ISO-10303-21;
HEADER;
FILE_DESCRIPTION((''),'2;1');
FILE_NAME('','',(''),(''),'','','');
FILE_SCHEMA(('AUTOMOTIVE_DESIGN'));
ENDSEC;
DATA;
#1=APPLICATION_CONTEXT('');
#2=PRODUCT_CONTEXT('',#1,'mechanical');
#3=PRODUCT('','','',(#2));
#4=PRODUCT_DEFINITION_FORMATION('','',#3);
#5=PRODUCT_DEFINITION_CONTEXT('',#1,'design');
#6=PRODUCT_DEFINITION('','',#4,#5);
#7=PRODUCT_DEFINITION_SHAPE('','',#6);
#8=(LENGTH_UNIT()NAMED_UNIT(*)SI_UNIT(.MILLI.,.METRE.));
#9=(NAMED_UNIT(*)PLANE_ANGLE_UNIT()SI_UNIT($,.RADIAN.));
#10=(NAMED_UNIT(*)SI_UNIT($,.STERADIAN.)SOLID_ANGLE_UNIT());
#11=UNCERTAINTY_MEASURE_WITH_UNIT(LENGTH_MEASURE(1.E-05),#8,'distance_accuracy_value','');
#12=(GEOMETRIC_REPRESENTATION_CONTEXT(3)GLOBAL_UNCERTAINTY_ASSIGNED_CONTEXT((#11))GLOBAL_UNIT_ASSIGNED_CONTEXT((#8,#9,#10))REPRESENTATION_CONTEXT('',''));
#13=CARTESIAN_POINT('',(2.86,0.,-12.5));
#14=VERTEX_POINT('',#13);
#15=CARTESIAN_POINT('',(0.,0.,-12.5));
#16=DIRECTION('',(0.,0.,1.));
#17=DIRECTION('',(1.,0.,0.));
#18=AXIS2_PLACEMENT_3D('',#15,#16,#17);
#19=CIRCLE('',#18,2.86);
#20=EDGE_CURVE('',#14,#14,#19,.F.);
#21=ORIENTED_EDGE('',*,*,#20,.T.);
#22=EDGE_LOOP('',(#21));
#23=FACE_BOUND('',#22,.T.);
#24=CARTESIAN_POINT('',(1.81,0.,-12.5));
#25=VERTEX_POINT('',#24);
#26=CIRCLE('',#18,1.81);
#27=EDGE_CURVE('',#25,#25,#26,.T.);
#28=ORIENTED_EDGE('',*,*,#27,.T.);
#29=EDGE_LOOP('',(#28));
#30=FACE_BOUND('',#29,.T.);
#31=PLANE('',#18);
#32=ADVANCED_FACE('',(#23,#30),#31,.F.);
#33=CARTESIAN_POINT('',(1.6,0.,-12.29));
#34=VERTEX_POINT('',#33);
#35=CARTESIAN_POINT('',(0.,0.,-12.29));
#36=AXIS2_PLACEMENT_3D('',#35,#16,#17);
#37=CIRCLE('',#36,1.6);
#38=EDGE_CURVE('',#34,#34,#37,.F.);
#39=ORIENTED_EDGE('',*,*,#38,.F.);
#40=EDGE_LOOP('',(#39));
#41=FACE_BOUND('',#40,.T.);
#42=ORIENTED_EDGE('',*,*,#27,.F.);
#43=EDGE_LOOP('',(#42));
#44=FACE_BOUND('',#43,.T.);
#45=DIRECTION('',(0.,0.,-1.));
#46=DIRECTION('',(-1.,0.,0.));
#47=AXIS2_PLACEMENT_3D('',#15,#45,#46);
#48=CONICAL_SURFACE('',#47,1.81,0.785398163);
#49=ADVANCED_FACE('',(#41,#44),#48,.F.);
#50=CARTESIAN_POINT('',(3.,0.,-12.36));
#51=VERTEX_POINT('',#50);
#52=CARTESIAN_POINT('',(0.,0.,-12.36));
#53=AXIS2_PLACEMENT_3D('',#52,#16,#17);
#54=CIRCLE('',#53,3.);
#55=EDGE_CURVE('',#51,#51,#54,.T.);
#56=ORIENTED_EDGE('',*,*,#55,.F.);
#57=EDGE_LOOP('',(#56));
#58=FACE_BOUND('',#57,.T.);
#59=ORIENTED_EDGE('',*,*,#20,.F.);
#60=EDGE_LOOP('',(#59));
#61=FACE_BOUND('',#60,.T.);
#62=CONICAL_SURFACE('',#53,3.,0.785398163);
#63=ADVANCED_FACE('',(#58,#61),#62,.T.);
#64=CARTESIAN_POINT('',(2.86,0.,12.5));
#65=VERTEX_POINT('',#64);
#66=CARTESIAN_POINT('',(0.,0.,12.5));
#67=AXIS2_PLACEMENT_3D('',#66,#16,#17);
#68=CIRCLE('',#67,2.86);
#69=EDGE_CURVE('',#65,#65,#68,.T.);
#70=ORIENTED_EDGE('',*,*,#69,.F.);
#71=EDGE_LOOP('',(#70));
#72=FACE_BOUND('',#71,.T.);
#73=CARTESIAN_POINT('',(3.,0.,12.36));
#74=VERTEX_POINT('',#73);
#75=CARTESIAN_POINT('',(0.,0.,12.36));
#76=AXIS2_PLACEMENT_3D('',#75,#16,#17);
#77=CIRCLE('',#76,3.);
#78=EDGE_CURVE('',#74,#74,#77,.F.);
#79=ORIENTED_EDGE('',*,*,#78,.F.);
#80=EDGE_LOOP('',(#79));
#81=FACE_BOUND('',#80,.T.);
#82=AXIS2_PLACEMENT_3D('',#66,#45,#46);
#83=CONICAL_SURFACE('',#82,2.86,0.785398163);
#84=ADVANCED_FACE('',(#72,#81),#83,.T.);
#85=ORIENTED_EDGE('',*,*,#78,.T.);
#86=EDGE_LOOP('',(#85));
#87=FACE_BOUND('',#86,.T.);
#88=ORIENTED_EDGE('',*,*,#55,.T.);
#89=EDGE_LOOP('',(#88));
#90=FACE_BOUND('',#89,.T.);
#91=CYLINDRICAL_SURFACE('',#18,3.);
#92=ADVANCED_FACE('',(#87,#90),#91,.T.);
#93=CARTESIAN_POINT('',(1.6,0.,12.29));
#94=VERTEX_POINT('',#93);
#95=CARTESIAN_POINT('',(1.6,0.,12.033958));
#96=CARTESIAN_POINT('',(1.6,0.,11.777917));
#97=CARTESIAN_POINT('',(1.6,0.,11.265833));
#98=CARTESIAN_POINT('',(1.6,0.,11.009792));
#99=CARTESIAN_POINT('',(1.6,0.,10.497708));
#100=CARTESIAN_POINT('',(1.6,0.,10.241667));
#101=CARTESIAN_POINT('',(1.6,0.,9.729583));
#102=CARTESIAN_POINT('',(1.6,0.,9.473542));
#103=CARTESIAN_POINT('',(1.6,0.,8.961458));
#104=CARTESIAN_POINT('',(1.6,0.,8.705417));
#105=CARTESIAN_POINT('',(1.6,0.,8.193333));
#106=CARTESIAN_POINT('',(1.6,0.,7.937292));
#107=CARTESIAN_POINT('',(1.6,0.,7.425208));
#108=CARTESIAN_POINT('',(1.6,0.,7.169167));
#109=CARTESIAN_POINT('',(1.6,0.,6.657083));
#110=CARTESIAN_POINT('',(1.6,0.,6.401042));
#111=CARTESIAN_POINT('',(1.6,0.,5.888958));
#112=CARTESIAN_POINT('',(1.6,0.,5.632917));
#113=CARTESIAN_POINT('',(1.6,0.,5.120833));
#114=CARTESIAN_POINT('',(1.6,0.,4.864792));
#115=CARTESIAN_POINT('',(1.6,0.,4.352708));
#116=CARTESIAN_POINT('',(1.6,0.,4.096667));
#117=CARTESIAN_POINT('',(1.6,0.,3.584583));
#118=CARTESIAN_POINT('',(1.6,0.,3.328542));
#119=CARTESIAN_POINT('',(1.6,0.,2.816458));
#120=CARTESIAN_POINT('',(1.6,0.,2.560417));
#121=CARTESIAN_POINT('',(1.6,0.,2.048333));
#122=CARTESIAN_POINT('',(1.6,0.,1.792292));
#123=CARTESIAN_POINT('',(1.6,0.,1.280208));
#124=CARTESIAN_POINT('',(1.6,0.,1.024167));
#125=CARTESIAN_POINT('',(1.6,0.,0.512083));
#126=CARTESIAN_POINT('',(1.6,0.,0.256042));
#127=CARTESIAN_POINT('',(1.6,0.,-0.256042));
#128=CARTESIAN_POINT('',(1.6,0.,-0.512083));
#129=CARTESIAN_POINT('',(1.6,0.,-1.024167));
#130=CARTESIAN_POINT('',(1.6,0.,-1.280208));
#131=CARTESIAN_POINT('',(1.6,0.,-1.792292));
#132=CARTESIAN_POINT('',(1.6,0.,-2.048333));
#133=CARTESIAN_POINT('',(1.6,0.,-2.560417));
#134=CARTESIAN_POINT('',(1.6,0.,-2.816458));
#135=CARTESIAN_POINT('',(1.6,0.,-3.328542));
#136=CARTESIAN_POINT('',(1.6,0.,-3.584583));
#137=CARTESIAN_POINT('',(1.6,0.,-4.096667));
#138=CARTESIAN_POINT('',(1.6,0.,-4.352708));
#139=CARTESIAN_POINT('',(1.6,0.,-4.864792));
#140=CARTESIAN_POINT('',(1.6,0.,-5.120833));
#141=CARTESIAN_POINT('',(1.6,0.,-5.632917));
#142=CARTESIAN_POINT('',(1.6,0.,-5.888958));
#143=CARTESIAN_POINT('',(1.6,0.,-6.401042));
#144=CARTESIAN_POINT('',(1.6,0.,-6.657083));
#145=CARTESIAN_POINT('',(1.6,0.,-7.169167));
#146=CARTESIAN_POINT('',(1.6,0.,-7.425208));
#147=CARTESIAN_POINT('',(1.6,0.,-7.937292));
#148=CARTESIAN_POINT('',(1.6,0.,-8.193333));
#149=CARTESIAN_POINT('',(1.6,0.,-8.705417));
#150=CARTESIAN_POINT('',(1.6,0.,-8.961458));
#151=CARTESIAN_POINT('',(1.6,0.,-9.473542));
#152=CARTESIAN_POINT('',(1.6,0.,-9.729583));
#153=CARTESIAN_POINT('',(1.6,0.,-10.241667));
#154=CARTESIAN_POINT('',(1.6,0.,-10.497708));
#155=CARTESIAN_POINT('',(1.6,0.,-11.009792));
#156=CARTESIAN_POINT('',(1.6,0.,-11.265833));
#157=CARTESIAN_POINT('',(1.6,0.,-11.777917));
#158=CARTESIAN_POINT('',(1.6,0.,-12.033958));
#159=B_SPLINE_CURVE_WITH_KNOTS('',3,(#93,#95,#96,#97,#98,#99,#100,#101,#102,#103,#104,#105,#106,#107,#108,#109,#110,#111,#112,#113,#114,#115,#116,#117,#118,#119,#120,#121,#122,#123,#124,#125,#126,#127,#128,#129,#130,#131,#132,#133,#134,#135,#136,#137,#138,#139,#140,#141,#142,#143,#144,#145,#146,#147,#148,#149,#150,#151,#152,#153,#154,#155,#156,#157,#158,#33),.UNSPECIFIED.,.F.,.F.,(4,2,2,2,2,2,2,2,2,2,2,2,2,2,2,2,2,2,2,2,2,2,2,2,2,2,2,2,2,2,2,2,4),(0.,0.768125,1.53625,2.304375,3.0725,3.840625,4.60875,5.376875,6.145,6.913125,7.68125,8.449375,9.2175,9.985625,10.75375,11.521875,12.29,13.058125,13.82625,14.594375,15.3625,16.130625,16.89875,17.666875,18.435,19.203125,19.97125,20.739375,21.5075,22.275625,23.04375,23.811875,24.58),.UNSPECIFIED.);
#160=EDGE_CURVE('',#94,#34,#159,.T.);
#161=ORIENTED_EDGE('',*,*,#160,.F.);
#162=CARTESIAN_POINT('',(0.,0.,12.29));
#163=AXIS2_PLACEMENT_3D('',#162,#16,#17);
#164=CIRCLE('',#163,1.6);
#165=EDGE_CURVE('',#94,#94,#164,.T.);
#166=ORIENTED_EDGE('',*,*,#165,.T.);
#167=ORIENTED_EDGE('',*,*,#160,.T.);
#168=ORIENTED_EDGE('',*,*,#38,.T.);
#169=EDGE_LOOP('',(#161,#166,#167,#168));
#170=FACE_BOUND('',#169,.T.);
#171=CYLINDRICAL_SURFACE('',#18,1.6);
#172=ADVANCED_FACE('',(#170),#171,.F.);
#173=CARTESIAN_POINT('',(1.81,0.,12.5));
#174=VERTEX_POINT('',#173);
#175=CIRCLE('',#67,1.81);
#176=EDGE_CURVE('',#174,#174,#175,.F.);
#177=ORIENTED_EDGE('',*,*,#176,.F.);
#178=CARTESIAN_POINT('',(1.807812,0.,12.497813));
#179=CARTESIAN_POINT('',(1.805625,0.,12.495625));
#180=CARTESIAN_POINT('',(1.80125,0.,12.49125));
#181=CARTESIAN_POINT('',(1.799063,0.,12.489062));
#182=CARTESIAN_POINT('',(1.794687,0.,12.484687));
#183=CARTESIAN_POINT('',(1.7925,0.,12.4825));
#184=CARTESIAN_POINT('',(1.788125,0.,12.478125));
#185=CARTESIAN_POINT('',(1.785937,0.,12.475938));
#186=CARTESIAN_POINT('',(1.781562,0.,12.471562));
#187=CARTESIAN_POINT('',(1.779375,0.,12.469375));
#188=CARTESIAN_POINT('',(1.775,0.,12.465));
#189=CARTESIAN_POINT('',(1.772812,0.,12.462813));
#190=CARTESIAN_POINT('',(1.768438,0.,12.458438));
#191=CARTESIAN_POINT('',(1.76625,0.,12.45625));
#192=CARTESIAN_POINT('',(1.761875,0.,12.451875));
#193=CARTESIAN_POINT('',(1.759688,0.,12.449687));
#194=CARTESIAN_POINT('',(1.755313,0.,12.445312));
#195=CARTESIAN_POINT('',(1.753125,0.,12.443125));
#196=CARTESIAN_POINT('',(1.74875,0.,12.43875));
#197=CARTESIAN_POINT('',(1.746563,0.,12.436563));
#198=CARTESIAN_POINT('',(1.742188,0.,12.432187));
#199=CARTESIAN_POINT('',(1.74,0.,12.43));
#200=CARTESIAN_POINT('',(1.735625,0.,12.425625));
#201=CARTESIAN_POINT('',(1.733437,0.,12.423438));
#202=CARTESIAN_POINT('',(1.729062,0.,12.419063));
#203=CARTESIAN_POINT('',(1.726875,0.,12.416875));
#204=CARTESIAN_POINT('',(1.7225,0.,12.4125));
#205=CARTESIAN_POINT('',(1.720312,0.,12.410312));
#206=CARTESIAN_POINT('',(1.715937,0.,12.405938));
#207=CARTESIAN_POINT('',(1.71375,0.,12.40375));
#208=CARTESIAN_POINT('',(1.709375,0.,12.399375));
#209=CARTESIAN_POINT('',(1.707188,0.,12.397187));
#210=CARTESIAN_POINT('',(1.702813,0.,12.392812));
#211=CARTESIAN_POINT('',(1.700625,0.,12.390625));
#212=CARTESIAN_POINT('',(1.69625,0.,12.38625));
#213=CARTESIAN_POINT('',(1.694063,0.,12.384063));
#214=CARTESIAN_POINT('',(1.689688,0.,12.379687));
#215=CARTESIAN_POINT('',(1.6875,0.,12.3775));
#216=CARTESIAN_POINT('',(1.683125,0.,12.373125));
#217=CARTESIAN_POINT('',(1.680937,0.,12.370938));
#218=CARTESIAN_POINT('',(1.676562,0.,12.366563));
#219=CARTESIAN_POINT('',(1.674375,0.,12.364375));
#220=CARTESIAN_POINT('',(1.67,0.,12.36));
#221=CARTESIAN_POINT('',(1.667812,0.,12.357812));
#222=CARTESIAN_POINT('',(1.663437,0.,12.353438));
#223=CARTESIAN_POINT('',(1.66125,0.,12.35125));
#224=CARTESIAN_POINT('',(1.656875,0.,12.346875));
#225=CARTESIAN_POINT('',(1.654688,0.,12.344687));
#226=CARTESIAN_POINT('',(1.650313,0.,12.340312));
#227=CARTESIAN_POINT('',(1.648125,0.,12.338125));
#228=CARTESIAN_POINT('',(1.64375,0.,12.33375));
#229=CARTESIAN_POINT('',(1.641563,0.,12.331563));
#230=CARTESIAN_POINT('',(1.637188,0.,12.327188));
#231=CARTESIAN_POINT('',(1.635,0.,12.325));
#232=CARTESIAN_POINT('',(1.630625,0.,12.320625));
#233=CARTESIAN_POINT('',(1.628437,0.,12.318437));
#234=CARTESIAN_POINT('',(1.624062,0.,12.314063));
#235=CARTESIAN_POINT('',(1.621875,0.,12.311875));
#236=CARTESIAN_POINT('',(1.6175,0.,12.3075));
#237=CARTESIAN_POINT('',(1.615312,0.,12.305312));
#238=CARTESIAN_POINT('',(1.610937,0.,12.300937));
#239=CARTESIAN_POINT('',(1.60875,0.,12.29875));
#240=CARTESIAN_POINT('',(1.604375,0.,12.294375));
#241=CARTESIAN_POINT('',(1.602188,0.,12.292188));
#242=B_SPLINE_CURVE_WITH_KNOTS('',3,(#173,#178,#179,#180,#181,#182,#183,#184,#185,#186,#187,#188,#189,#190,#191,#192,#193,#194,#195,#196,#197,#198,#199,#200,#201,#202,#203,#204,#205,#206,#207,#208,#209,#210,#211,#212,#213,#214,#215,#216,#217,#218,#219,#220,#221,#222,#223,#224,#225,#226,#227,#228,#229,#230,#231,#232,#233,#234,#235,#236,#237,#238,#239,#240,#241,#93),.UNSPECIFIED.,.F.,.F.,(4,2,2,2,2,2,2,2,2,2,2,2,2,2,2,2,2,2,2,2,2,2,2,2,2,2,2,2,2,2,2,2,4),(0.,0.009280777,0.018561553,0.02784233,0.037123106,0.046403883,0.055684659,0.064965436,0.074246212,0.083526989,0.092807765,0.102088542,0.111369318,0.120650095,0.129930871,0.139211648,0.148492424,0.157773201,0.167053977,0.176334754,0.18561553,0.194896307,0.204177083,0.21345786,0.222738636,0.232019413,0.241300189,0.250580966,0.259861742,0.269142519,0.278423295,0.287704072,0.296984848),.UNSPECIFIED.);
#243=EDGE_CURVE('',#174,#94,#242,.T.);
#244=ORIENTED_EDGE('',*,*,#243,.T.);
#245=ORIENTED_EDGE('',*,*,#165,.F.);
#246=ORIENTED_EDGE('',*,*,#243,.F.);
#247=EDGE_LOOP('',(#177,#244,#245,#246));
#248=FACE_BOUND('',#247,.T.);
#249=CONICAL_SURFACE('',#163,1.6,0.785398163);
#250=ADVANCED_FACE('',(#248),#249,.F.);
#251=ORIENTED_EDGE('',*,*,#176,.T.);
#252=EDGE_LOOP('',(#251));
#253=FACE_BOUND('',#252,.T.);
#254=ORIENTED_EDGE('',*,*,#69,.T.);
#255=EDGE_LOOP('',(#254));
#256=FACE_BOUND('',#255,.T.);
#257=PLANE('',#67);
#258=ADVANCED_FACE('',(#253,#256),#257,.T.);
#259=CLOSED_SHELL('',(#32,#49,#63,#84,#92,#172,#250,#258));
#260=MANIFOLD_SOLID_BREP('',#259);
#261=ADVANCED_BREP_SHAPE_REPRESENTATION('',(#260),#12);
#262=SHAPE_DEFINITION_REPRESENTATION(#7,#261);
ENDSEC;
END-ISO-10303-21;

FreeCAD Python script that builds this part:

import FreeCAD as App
import Part
import Sketcher
Q = App.Units.Quantity


def edges_at(feature, points):
    """Names of the edges that pass closest to the given points."""
    edges = feature.Shape.Edges
    near = lambda p: min(range(len(edges)), key=lambda i: edges[i].distToShape(Part.Vertex(*p))[0])
    return sorted({f"Edge{near(p) + 1}" for p in points})

doc = App.newDocument("Part")
body = doc.addObject("PartDesign::Body", "Body")

# Sketch on XY plane
sketch1 = body.newObject("Sketcher::SketchObject", "Sketch")
sketch1.AttachmentSupport = (doc.getObject("XY_Plane"), [""])
sketch1.MapMode = "FlatFace"
sketch1.addGeometry([
    Part.Circle(App.Vector(0, 0, 0), App.Vector(0, 0, 1), 3),
    Part.Circle(App.Vector(0, 0, 0), App.Vector(0, 0, 1), 1.6),
], False)
sketch1.addConstraint([
    Sketcher.Constraint("Coincident", 0, 3, -1, 1),
    Sketcher.Constraint("Coincident", 1, 3, -1, 1),
    Sketcher.Constraint("Diameter", 0, Q("6 mm")),
    Sketcher.Constraint("Diameter", 1, Q("3.2 mm")),
])
pad1 = body.newObject("PartDesign::Pad", "Pad")
pad1.Profile = sketch1
pad1.Type = "TwoLengths"
pad1.Length = 12.5
pad1.Length2 = 12.5
doc.recompute()

chamfer = body.newObject("PartDesign::Chamfer", "Chamfer")
chamfer.Base = (pad1, edges_at(pad1, [(-3, 0, -12.5), (-3, 0, 12.5)]))
chamfer.Size = 0.14
doc.recompute()

chamfer2 = body.newObject("PartDesign::Chamfer", "Chamfer001")
chamfer2.Base = (chamfer, edges_at(chamfer, [(-1.6, 0, -12.5), (-1.6, 0, 12.5)]))
chamfer2.Size = 0.21

doc.recompute()
